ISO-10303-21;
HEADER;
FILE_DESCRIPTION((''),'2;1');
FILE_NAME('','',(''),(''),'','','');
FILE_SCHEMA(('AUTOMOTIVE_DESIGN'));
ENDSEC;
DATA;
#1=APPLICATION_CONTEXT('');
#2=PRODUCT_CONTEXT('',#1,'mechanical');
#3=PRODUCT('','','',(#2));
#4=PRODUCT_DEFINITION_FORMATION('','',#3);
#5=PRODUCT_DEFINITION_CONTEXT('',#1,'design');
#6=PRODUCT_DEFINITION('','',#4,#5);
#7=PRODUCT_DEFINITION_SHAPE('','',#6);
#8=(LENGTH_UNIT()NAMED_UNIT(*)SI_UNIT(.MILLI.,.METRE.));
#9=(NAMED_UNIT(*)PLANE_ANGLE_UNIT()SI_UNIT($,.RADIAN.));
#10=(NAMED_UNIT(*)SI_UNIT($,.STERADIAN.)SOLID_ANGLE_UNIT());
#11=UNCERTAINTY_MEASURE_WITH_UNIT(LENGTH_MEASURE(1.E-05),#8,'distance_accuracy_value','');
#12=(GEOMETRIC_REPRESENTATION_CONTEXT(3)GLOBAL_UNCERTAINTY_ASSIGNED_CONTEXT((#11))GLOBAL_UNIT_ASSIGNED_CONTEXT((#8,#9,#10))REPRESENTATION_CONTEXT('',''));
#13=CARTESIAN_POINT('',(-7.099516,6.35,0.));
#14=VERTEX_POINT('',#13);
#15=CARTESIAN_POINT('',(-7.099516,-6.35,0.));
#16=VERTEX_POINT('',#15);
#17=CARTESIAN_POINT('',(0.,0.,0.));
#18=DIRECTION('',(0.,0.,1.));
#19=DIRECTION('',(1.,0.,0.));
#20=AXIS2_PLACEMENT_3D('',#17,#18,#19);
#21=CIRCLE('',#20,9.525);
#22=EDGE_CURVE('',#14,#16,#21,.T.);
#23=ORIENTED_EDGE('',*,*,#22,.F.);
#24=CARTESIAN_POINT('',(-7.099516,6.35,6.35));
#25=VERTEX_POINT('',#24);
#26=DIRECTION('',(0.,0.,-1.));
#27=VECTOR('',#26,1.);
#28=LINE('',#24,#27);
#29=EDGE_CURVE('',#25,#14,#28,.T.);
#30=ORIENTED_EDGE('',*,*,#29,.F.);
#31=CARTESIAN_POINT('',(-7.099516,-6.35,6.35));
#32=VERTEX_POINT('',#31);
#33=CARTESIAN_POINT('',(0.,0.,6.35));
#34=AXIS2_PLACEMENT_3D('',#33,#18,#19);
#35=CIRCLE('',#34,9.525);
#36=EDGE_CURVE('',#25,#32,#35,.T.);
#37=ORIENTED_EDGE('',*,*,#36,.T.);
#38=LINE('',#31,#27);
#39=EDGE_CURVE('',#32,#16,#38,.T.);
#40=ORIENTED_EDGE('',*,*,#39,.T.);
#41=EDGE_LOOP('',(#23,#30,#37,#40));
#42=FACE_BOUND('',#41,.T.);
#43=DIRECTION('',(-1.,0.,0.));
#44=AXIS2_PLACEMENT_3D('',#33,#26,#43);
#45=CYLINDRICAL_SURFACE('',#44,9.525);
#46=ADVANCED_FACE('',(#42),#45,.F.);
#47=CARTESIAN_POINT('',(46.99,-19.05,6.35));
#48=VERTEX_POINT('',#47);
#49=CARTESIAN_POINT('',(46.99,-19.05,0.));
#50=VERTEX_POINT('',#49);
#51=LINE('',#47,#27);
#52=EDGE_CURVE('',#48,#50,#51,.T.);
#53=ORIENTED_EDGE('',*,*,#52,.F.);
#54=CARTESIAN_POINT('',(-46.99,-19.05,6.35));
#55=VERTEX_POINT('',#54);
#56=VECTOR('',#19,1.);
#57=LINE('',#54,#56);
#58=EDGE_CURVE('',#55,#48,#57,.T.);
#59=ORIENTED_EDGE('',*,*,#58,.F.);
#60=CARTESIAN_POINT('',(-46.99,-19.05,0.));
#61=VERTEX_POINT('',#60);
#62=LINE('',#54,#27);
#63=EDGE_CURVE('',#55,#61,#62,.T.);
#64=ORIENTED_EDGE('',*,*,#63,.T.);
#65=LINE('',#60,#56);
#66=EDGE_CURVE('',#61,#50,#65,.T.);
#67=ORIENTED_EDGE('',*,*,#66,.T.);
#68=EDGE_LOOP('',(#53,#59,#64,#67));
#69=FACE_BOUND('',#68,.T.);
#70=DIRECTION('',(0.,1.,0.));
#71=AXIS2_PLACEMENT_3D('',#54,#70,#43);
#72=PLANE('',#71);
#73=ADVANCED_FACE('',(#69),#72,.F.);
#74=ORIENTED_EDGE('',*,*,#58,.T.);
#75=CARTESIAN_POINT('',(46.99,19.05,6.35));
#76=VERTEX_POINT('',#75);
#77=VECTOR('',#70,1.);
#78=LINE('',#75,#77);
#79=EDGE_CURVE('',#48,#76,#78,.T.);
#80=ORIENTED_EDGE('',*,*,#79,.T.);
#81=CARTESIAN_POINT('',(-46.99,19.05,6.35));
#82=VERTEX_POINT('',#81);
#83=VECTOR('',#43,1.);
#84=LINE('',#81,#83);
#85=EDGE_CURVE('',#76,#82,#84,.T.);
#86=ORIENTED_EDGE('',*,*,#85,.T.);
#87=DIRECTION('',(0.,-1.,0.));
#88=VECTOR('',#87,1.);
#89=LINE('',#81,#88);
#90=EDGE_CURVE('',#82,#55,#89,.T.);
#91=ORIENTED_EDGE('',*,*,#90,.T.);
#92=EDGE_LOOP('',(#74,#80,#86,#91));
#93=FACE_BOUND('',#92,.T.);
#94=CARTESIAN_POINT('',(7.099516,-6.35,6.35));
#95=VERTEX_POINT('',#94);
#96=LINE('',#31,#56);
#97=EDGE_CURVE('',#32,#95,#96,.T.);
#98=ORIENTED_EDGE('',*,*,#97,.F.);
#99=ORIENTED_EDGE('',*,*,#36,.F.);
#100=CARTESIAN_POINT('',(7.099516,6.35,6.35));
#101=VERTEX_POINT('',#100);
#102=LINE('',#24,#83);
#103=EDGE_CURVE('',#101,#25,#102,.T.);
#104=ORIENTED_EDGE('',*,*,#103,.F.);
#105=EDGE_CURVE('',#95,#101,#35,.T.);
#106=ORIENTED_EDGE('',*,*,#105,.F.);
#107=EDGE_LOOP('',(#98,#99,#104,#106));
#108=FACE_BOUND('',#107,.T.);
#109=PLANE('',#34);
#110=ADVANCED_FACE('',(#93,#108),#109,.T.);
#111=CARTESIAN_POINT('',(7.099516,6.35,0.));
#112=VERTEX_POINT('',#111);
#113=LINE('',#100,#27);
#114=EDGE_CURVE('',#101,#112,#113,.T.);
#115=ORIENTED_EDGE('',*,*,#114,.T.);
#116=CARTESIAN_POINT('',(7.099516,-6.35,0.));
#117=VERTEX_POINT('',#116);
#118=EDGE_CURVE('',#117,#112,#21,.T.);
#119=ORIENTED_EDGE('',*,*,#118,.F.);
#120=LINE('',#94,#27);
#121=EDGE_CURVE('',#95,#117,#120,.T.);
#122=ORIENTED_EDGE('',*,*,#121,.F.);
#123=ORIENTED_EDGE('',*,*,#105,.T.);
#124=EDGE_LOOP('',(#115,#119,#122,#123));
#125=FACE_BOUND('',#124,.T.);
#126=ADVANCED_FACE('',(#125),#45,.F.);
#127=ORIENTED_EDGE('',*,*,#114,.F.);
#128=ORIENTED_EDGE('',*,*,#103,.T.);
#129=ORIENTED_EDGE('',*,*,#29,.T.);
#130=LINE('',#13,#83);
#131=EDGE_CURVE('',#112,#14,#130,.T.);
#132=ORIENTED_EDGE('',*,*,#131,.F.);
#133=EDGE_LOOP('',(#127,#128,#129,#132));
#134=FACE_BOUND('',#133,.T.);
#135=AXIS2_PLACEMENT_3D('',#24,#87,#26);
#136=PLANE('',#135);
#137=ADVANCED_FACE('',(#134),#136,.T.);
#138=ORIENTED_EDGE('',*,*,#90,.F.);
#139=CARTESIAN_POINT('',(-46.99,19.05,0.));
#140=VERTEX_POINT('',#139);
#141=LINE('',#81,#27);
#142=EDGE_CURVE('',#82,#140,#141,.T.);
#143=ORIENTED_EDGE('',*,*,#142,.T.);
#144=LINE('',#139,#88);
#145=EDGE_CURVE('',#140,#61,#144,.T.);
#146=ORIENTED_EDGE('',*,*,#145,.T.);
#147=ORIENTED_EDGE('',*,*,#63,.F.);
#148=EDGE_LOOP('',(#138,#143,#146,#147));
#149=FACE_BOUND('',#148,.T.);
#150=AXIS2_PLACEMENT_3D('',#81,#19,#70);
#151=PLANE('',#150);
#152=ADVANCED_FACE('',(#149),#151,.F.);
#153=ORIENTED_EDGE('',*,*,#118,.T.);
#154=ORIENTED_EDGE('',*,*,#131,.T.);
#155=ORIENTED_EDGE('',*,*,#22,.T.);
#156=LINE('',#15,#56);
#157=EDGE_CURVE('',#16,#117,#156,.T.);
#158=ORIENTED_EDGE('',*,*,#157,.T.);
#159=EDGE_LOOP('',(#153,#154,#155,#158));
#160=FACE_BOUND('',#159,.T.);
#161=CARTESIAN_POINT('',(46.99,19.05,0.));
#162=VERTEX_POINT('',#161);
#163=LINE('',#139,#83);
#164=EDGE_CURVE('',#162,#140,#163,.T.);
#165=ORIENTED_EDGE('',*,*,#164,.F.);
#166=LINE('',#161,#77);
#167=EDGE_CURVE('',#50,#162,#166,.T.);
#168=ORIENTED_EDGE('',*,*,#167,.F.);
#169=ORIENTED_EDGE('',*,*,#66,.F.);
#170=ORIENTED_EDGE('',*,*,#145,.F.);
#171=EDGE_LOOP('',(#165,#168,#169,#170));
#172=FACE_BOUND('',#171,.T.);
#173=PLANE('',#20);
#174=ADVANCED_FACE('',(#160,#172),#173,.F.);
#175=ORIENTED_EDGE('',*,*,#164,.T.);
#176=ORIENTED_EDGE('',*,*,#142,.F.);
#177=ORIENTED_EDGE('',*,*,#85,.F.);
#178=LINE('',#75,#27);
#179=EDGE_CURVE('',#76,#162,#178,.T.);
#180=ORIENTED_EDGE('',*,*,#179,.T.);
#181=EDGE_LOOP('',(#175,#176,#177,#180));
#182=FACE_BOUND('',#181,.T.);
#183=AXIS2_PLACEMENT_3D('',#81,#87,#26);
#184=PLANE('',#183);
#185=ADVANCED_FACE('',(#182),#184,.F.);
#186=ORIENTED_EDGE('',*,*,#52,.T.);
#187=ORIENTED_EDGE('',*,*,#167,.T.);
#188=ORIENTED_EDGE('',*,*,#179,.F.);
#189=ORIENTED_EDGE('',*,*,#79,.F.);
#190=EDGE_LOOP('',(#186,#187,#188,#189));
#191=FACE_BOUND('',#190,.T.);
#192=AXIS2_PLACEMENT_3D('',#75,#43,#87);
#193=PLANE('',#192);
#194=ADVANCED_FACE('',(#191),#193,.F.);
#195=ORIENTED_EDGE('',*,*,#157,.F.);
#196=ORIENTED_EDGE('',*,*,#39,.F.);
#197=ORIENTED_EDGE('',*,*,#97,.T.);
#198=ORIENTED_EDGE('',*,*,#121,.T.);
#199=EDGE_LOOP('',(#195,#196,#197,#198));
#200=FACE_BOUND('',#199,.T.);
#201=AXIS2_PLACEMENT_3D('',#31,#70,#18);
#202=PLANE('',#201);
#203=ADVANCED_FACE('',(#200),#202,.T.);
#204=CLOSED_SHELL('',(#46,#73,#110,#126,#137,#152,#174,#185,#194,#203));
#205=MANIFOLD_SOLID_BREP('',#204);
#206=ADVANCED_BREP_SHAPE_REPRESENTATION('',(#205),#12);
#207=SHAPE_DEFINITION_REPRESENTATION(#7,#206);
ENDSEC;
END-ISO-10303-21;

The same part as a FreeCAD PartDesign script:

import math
import FreeCAD as App
import Part
import Sketcher
Q = App.Units.Quantity


def add_polygon(sketch, points):
    """Adds a closed chain of lines whose ends are joined by coincident constraints."""
    first, n = sketch.GeometryCount, len(points)
    for a, b in zip(points, points[1:] + points[:1]):
        sketch.addGeometry(Part.LineSegment(App.Vector(*a, 0), App.Vector(*b, 0)), False)
    for i in range(n):
        sketch.addConstraint(Sketcher.Constraint("Coincident", first + i, 2, first + (i + 1) % n, 1))

doc = App.newDocument("Part")
body = doc.addObject("PartDesign::Body", "Body")

# Sketch on XY plane
sketch1 = body.newObject("Sketcher::SketchObject", "Sketch")
sketch1.AttachmentSupport = (doc.getObject("XY_Plane"), [""])
sketch1.MapMode = "FlatFace"
add_polygon(sketch1, [(-47, 19), (-47, -19), (47, -19), (47, 19)])  # lines 0-3
sketch1.addGeometry(Part.LineSegment(App.Vector(7, -6, 0), App.Vector(-7, -6, 0)), False)  # 4
sketch1.addGeometry(Part.ArcOfCircle(Part.Circle(App.Vector(0, 0, 0), App.Vector(0, 0, 1), 10), math.radians(138), math.radians(222)), False)  # 5
sketch1.addGeometry(Part.LineSegment(App.Vector(-7, 6, 0), App.Vector(7, 6, 0)), False)  # 6
sketch1.addGeometry(Part.ArcOfCircle(Part.Circle(App.Vector(0, 0, 0), App.Vector(0, 0, 1), 10), math.radians(-42), math.radians(42)), False)  # 7
sketch1.addConstraint([
    Sketcher.Constraint("Coincident", 4, 2, 5, 2),
    Sketcher.Constraint("Coincident", 5, 1, 6, 1),
    Sketcher.Constraint("Coincident", 6, 2, 7, 2),
    Sketcher.Constraint("Coincident", 7, 1, 4, 1),
    Sketcher.Constraint("Vertical", 0),
    Sketcher.Constraint("Horizontal", 1),
    Sketcher.Constraint("Vertical", 2),
    Sketcher.Constraint("Horizontal", 3),
    Sketcher.Constraint("Horizontal", 4),
    Sketcher.Constraint("Horizontal", 6),
    Sketcher.Constraint("Coincident", 5, 3, -1, 1),
    Sketcher.Constraint("Coincident", 7, 3, -1, 1),
    Sketcher.Constraint("Equal", 5, 7),
    Sketcher.Constraint("Symmetric", 0, 2, 2, 2, -1, 1),
    Sketcher.Constraint("Vertical", 4, 2, 5, 1),
    Sketcher.Constraint("DistanceX", 1, 1, 1, 2, Q("3.7 in")),
    Sketcher.Constraint("DistanceY", 0, 2, 0, 1, Q("1.5 in")),
    Sketcher.Constraint("Radius", 5, Q("0.375 in")),
    Sketcher.Constraint("DistanceY", 4, 2, 3, 2, Q("1 in")),
])
pad1 = body.newObject("PartDesign::Pad", "Pad")
pad1.Profile = sketch1
pad1.Length = Q("0.25 in")

doc.recompute()
